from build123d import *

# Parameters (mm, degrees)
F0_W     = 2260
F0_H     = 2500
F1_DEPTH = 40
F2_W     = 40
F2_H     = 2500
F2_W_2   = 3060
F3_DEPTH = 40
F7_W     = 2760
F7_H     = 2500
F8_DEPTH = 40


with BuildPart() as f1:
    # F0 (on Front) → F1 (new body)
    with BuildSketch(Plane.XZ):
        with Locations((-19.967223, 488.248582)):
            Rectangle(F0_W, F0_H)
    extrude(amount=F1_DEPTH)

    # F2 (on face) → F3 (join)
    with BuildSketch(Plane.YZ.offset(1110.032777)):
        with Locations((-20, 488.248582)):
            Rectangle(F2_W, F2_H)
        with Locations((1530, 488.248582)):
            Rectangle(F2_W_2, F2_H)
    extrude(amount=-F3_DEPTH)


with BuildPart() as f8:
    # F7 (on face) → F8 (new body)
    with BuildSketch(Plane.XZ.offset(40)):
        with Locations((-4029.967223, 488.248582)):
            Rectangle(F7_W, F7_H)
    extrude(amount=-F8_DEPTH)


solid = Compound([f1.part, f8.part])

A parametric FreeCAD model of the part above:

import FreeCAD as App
import Part
import Sketcher

V = App.Vector


def add_polygon(sketch, points):
    """Adds a closed chain of lines whose ends are joined by coincident constraints."""
    first, n = sketch.GeometryCount, len(points)
    for a, b in zip(points, points[1:] + points[:1]):
        sketch.addGeometry(Part.LineSegment(App.Vector(*a, 0), App.Vector(*b, 0)), False)
    for i in range(n):
        sketch.addConstraint(Sketcher.Constraint("Coincident", first + i, 2, first + (i + 1) % n, 1))

doc = App.newDocument("Part")
params = doc.addObject("Spreadsheet::Sheet", "Params")
for row, (alias, value) in enumerate([
    ("sketch1_width", "2260 mm"),
    ("sketch1_height", "2500 mm"),
    ("pad1_length", "40 mm"),
    ("sketch2_width", "3100 mm"),
    ("sketch2_height", "2500 mm"),
    ("pad2_length", "40 mm"),
    ("sketch3_width", "2760 mm"),
    ("sketch3_height", "2500 mm"),
    ("pad3_length", "40 mm"),
], start=1):
    params.set(f"A{row}", alias)
    params.set(f"B{row}", "=" + value)
    params.setAlias(f"B{row}", alias)

body = doc.addObject("PartDesign::Body", "Body")

sketch1 = body.newObject("Sketcher::SketchObject", "Sketch")
sketch1.AttachmentSupport = (doc.getObject("XZ_Plane"), [""])
sketch1.MapMode = "FlatFace"
add_polygon(sketch1, [(-1150, 1738), (-1150, -762), (1110, -762), (1110, 1738)])
sketch1.addConstraint([
    Sketcher.Constraint("Vertical", 0),
    Sketcher.Constraint("Horizontal", 1),
    Sketcher.Constraint("Vertical", 2),
    Sketcher.Constraint("Horizontal", 3),
    Sketcher.Constraint("DistanceX", 1, 1, 1, 2, 2260.0),
    Sketcher.Constraint("DistanceY", 0, 2, 0, 1, 2500.0),
    Sketcher.Constraint("DistanceY", -1, 1, 2, 2, 1738.248582),
    Sketcher.Constraint("DistanceX", 0, 2, -1, 1, 1149.967223),
])
sketch1.setExpression("Constraints[8]", "Params.sketch1_width")
sketch1.setExpression("Constraints[9]", "Params.sketch1_height")
pad1 = body.newObject("PartDesign::Pad", "Pad")
pad1.Profile = sketch1
pad1.setExpression("Length", "Params.pad1_length")

sketch2 = body.newObject("Sketcher::SketchObject", "Sketch001")
sketch2.AttachmentSupport = (doc.getObject("YZ_Plane"), [""])
sketch2.MapMode = "FlatFace"
sketch2.AttachmentOffset = App.Placement(V(0, 0, 1110.032777), App.Rotation())
add_polygon(sketch2, [(-40, 1738), (-40, -762), (3060, -762), (3060, 1738)])
sketch2.addConstraint([
    Sketcher.Constraint("Vertical", 0),
    Sketcher.Constraint("Horizontal", 1),
    Sketcher.Constraint("Vertical", 2),
    Sketcher.Constraint("Horizontal", 3),
    Sketcher.Constraint("DistanceX", 1, 1, 1, 2, 3100.0),
    Sketcher.Constraint("DistanceY", 0, 2, 0, 1, 2500.0),
    Sketcher.Constraint("DistanceX", 0, 2, -1, 1, 40.0),
    Sketcher.Constraint("DistanceY", -1, 1, 2, 2, 1738.248582),
])
sketch2.setExpression("Constraints[8]", "Params.sketch2_width")
sketch2.setExpression("Constraints[9]", "Params.sketch2_height")
pad2 = body.newObject("PartDesign::Pad", "Pad001")
pad2.Profile = sketch2
pad2.setExpression("Length", "Params.pad2_length")
pad2.Reversed = True
body2 = doc.addObject("PartDesign::Body", "Body001")

sketch3 = body2.newObject("Sketcher::SketchObject", "Sketch002")
sketch3.AttachmentSupport = (doc.getObject("XZ_Plane001"), [""])
sketch3.MapMode = "FlatFace"
sketch3.AttachmentOffset = App.Placement(V(0, 0, 40), App.Rotation())
add_polygon(sketch3, [(-5410, 1738), (-5410, -762), (-2650, -762), (-2650, 1738)])
sketch3.addConstraint([
    Sketcher.Constraint("Vertical", 0),
    Sketcher.Constraint("Horizontal", 1),
    Sketcher.Constraint("Vertical", 2),
    Sketcher.Constraint("Horizontal", 3),
    Sketcher.Constraint("DistanceX", 1, 1, 1, 2, 2760.0),
    Sketcher.Constraint("DistanceY", 0, 2, 0, 1, 2500.0),
    Sketcher.Constraint("DistanceY", -1, 1, 2, 2, 1738.248582),
    Sketcher.Constraint("DistanceX", 0, 2, -1, 1, 5409.967223),
])
sketch3.setExpression("Constraints[8]", "Params.sketch3_width")
sketch3.setExpression("Constraints[9]", "Params.sketch3_height")
pad3 = body2.newObject("PartDesign::Pad", "Pad002")
pad3.Profile = sketch3
pad3.setExpression("Length", "Params.pad3_length")
pad3.Reversed = True

doc.recompute()
